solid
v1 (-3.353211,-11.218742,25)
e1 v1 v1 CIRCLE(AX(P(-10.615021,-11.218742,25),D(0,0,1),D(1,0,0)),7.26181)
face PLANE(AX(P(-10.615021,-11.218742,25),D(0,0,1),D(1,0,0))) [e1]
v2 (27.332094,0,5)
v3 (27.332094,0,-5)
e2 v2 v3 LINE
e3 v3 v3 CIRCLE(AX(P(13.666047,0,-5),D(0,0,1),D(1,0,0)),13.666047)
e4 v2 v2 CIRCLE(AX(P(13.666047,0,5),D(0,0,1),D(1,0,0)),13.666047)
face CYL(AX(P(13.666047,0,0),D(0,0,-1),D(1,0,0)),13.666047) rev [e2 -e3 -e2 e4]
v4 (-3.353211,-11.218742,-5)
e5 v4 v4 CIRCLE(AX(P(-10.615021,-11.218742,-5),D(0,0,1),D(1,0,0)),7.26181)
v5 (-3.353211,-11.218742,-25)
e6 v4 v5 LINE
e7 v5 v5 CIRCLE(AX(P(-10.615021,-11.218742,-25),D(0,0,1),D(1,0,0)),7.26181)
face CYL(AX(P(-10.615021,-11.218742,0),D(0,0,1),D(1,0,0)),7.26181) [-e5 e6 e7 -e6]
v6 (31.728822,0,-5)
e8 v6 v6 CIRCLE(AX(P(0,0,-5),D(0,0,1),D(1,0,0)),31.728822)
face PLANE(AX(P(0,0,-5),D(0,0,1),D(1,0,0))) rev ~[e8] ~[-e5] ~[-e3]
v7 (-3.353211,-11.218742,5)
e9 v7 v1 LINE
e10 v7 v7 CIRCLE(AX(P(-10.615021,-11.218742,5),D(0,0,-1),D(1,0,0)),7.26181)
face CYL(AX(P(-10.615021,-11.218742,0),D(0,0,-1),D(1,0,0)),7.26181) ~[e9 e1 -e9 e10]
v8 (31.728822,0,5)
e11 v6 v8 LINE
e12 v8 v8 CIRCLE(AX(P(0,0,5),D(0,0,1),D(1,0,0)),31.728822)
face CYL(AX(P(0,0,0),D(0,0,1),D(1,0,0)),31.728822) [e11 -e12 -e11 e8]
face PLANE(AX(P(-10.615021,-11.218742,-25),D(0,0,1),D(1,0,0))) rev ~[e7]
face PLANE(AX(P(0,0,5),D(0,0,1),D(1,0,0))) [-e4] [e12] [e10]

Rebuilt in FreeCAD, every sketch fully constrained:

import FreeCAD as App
import Part
import Sketcher
from FreeCAD import Vector

doc = App.newDocument("Part")
body = doc.addObject("PartDesign::Body", "Body")

sketch1 = body.newObject("Sketcher::SketchObject", "Sketch")
sketch1.AttachmentSupport = (doc.getObject("XY_Plane"), [""])
sketch1.MapMode = "FlatFace"
sketch1.addGeometry([
    Part.Circle(Vector(0, 0, 0), Vector(0, 0, 1), 31.728822),
    Part.Circle(Vector(13.666047, 0, 0), Vector(0, 0, 1), 13.666047),
], False)
sketch1.addConstraint([
    Sketcher.Constraint("Coincident", 0, 3, -1, 1),
    Sketcher.Constraint("PointOnObject", 1, 3, -1),
    Sketcher.Constraint("Diameter", 0, 63.457644),
    Sketcher.Constraint("Diameter", 1, 27.332094),
    Sketcher.Constraint("DistanceX", -1, 1, 1, 3, 13.666047),
])
pad1 = body.newObject("PartDesign::Pad", "Pad")
pad1.Profile = sketch1
pad1.Type = "TwoLengths"
pad1.Length = 5
pad1.Length2 = 5

sketch2 = body.newObject("Sketcher::SketchObject", "Sketch001")
sketch2.AttachmentSupport = (doc.getObject("XY_Plane"), [""])
sketch2.MapMode = "FlatFace"
sketch2.addGeometry(Part.Circle(Vector(-10.615021, -11.218742, 0), Vector(0, 0, 1), 7.26181), False)
sketch2.addConstraint([
    Sketcher.Constraint("Diameter", 0, 14.52362),
    Sketcher.Constraint("DistanceX", 0, 3, -1, 1, 10.615021),
    Sketcher.Constraint("DistanceY", 0, 3, -1, 1, 11.218742),
])
pad2 = body.newObject("PartDesign::Pad", "Pad001")
pad2.Profile = sketch2
pad2.Type = "TwoLengths"
pad2.Length = 25
pad2.Length2 = 25

doc.recompute()
